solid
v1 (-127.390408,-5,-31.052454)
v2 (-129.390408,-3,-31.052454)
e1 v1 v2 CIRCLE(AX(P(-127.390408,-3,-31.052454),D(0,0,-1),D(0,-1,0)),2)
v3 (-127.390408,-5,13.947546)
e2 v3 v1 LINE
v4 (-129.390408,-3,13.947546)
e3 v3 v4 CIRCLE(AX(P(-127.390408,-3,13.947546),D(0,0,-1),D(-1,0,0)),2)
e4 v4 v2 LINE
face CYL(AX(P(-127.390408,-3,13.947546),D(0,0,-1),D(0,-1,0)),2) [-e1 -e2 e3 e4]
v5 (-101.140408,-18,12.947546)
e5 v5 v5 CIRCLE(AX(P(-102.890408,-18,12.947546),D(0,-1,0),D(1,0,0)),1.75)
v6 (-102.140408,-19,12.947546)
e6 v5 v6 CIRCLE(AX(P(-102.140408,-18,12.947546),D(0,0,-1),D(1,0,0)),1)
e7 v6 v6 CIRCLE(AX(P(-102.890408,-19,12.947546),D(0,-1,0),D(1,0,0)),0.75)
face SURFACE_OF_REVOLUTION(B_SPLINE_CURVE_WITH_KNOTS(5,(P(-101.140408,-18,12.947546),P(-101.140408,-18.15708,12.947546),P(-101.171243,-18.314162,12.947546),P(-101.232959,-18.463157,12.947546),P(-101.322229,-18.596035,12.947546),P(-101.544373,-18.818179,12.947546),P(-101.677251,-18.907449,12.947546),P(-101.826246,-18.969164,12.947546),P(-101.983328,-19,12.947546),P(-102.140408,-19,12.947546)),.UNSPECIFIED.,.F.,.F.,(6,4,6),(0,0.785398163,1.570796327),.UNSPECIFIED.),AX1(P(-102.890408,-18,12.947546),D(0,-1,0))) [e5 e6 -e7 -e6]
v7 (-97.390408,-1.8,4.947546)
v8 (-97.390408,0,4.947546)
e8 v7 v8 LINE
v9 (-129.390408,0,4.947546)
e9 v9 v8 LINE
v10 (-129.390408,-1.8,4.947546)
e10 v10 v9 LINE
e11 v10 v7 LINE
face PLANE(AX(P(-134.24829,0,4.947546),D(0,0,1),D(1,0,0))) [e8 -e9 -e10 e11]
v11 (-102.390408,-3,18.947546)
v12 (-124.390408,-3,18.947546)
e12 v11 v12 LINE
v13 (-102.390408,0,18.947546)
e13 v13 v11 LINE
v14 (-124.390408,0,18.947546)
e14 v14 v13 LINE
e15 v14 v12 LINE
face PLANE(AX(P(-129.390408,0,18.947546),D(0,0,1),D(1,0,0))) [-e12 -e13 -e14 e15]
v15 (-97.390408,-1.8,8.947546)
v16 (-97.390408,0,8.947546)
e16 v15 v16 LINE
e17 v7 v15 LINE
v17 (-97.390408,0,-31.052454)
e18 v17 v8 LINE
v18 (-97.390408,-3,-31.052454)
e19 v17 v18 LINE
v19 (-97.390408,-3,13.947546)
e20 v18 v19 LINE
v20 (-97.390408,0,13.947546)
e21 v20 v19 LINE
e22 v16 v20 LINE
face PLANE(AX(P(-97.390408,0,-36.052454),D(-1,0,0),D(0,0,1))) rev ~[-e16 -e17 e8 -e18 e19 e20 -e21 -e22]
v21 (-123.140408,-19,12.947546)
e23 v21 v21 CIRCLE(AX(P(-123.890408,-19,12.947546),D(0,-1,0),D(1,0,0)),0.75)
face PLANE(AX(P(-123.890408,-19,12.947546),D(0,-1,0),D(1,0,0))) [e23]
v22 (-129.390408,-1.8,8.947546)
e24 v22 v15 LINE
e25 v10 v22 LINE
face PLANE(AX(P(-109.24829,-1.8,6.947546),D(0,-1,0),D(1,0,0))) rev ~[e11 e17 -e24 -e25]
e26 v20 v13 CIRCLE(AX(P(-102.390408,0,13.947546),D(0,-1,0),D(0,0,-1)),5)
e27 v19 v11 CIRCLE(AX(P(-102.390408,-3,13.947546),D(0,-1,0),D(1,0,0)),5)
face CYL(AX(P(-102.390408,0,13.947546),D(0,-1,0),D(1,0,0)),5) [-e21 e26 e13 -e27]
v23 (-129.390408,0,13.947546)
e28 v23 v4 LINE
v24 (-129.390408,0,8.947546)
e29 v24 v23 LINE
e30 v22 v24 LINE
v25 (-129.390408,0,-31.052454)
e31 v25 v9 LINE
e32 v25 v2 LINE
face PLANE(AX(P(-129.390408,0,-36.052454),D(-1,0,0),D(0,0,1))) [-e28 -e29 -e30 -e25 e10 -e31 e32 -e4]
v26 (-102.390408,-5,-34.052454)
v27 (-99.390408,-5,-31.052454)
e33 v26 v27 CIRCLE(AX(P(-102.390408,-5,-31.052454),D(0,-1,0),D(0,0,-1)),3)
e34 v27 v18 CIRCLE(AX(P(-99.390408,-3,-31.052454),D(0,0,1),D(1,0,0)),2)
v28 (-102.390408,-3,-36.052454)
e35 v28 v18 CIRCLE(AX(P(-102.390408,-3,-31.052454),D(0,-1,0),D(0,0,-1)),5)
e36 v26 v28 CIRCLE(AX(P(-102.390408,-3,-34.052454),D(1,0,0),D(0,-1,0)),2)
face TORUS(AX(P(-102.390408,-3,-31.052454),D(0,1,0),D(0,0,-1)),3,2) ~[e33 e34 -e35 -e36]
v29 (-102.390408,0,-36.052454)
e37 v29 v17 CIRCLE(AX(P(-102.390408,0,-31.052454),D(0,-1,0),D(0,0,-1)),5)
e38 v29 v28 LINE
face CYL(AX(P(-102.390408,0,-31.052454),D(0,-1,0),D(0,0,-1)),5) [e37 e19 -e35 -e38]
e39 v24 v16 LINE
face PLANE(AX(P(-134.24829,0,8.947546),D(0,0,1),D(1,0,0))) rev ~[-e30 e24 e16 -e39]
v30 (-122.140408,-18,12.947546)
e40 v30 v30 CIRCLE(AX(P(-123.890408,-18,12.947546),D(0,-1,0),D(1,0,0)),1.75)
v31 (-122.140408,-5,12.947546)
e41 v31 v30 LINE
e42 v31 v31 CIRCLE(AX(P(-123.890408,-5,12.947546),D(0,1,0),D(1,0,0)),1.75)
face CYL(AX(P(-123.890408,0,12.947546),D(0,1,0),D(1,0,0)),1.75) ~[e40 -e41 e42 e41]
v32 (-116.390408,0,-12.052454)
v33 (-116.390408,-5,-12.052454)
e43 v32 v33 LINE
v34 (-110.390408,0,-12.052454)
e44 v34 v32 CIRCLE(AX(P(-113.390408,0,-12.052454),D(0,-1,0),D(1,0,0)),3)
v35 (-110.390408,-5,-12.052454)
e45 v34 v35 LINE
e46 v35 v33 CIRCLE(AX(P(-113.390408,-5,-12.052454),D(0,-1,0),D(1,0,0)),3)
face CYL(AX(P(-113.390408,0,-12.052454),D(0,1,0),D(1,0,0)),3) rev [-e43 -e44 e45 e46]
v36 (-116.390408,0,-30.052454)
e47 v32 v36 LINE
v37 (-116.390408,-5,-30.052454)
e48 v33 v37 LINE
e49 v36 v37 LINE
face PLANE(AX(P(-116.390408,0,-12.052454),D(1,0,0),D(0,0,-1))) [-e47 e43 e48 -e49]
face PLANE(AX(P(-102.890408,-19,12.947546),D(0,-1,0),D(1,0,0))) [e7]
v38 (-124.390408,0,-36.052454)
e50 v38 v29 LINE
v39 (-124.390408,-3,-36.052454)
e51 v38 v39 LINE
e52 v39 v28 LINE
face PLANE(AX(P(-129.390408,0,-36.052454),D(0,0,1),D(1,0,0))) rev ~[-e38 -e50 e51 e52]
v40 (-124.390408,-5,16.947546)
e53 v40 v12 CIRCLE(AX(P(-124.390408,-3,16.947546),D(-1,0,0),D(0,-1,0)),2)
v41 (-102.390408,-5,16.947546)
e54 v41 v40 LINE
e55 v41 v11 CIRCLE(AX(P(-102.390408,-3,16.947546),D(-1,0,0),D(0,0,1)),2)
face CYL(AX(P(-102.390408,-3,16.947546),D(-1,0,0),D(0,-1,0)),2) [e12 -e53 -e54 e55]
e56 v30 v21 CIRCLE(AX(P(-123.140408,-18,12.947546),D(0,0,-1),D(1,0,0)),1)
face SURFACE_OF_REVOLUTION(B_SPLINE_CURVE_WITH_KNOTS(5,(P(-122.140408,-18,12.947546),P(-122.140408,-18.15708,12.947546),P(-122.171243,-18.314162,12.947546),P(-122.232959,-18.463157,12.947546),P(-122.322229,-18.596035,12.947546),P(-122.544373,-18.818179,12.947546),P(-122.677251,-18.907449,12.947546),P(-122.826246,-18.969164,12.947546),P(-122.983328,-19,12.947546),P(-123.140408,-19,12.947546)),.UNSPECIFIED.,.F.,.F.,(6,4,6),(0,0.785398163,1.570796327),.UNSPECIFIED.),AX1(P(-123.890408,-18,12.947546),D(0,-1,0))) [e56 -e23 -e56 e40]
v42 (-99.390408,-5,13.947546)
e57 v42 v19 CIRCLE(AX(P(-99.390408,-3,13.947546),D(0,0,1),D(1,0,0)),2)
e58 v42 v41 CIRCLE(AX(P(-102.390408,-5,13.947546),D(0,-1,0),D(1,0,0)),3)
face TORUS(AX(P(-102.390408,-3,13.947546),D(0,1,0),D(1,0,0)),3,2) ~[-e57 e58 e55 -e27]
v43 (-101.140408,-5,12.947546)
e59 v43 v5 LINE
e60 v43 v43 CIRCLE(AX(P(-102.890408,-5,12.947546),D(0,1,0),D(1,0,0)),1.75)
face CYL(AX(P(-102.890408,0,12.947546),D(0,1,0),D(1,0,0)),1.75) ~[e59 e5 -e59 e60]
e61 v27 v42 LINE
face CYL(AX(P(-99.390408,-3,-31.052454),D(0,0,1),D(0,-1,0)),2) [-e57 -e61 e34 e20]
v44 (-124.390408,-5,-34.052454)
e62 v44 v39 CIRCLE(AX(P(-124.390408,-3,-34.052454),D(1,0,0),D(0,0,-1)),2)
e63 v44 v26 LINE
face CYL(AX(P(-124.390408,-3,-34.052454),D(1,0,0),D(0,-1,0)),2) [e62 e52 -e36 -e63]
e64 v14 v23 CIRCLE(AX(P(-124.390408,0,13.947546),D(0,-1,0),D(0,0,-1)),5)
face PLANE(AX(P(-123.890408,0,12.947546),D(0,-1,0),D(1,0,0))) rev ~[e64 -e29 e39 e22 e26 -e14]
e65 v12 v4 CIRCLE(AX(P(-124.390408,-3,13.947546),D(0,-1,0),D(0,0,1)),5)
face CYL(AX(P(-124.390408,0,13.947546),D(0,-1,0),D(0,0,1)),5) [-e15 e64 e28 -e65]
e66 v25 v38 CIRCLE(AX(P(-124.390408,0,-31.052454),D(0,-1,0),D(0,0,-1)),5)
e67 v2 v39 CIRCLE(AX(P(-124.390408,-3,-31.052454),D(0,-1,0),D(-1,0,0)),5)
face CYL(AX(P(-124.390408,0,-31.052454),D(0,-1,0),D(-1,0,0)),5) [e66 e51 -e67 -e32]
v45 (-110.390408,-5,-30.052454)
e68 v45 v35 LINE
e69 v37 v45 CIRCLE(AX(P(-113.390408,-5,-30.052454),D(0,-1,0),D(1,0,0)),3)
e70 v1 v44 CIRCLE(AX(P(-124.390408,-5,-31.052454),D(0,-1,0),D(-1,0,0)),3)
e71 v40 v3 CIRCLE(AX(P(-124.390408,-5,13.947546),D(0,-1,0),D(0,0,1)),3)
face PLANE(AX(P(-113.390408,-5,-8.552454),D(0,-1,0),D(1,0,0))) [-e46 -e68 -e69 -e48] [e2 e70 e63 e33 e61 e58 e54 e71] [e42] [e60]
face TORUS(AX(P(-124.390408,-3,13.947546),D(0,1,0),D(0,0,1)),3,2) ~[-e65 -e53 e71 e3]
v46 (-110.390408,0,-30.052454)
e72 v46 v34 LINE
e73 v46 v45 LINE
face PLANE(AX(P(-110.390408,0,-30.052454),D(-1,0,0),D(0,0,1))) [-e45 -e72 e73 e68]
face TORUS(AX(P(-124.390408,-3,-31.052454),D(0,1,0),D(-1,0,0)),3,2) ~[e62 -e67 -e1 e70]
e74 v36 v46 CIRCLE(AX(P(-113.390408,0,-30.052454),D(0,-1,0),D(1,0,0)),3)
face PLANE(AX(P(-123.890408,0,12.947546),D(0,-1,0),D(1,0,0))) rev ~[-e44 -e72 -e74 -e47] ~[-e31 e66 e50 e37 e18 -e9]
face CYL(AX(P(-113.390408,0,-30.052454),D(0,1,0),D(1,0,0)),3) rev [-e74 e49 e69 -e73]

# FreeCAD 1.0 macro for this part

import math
import FreeCAD as App
import Part
import Sketcher
from FreeCAD import Vector


def edges_at(feature, points):
    """Names of the edges that pass closest to the given points."""
    edges = feature.Shape.Edges
    near = lambda p: min(range(len(edges)), key=lambda i: edges[i].distToShape(Part.Vertex(*p))[0])
    return sorted({f"Edge{near(p) + 1}" for p in points})

doc = App.newDocument("Part")
body = doc.addObject("PartDesign::Body", "Body")

# Sketch on XZ plane
sketch1 = body.newObject("Sketcher::SketchObject", "Sketch")
sketch1.AttachmentSupport = (doc.getObject("XZ_Plane"), [""])
sketch1.MapMode = "FlatFace"
sketch1.addGeometry([
    Part.LineSegment(Vector(-129, 19, 0), Vector(-129, -36, 0)),
    Part.LineSegment(Vector(-129, -36, 0), Vector(-97, -36, 0)),
    Part.LineSegment(Vector(-97, -36, 0), Vector(-97, 19, 0)),
    Part.LineSegment(Vector(-97, 19, 0), Vector(-129, 19, 0)),
], False)
sketch1.addConstraint([
    Sketcher.Constraint("Coincident", 0, 2, 1, 1),
    Sketcher.Constraint("Coincident", 1, 2, 2, 1),
    Sketcher.Constraint("Coincident", 2, 2, 3, 1),
    Sketcher.Constraint("Coincident", 3, 2, 0, 1),
    Sketcher.Constraint("Vertical", 0),
    Sketcher.Constraint("Horizontal", 1),
    Sketcher.Constraint("Vertical", 2),
    Sketcher.Constraint("Horizontal", 3),
    Sketcher.Constraint("DistanceX", 1, 1, 1, 2, 32.0),
    Sketcher.Constraint("DistanceY", 0, 2, 0, 1, 55.0),
    Sketcher.Constraint("DistanceX", 0, 2, -1, 1, 129.390408),
    Sketcher.Constraint("DistanceY", 0, 2, -1, 1, 36.052454),
])
pad1 = body.newObject("PartDesign::Pad", "Pad")
pad1.Profile = sketch1
pad1.Length = 5

# Sketch on XZ plane
sketch2 = body.newObject("Sketcher::SketchObject", "Sketch001")
sketch2.AttachmentSupport = (doc.getObject("XZ_Plane"), [""])
sketch2.MapMode = "FlatFace"
sketch2.addGeometry([
    Part.Circle(Vector(-123.9, 12.9, 0), Vector(0, 0, 1), 1.8),
    Part.Circle(Vector(-102.9, 12.9, 0), Vector(0, 0, 1), 1.8),
], False)
sketch2.addConstraint([
    Sketcher.Constraint("Equal", 0, 1),
    Sketcher.Constraint("Horizontal", 0, 3, 1, 3),
    Sketcher.Constraint("Diameter", 0, 3.5),
    Sketcher.Constraint("DistanceX", 0, 3, 1, 3, 21.0),
    Sketcher.Constraint("DistanceX", 0, 3, -1, 1, 123.890408),
    Sketcher.Constraint("DistanceY", -1, 1, 0, 3, 12.947546),
])
pad2 = body.newObject("PartDesign::Pad", "Pad001")
pad2.Profile = sketch2
pad2.Length = 19

# Sketch on XZ plane
sketch3 = body.newObject("Sketcher::SketchObject", "Sketch002")
sketch3.AttachmentSupport = (doc.getObject("XZ_Plane"), [""])
sketch3.MapMode = "FlatFace"
sketch3.addGeometry([
    Part.ArcOfCircle(Part.Circle(Vector(-113.4, -12.1, 0), Vector(0, 0, 1), 3), math.radians(0), math.radians(180)),
    Part.LineSegment(Vector(-116.4, -12.1, 0), Vector(-116.4, -30.1, 0)),
    Part.ArcOfCircle(Part.Circle(Vector(-113.4, -30.1, 0), Vector(0, 0, 1), 3), math.radians(180), math.radians(360)),
    Part.LineSegment(Vector(-110.4, -30.1, 0), Vector(-110.4, -12.1, 0)),
], False)
sketch3.addConstraint([
    Sketcher.Constraint("Tangent", 0, 2, 1, 1),
    Sketcher.Constraint("Tangent", 1, 2, 2, 1),
    Sketcher.Constraint("Tangent", 2, 2, 3, 1),
    Sketcher.Constraint("Tangent", 3, 2, 0, 1),
    Sketcher.Constraint("Vertical", 1),
    Sketcher.Constraint("Vertical", 3),
    Sketcher.Constraint("Radius", 0, 3.0),
    Sketcher.Constraint("DistanceY", 1, 2, 1, 1, 18.0),
    Sketcher.Constraint("DistanceX", 0, 3, -1, 1, 113.390408),
    Sketcher.Constraint("DistanceY", 0, 3, -1, 1, 12.052454),
])
pocket1 = body.newObject("PartDesign::Pocket", "Pocket")
pocket1.Profile = sketch3
pocket1.Length = 5
pocket1.Reversed = True

# Sketch on XZ plane
sketch4 = body.newObject("Sketcher::SketchObject", "Sketch003")
sketch4.AttachmentSupport = (doc.getObject("XZ_Plane"), [""])
sketch4.MapMode = "FlatFace"
sketch4.addGeometry([
    Part.LineSegment(Vector(-134.2, 8.9, 0), Vector(-134.2, 4.9, 0)),
    Part.LineSegment(Vector(-134.2, 4.9, 0), Vector(-84.2, 4.9, 0)),
    Part.LineSegment(Vector(-84.2, 4.9, 0), Vector(-84.2, 8.9, 0)),
    Part.LineSegment(Vector(-84.2, 8.9, 0), Vector(-134.2, 8.9, 0)),
], False)
sketch4.addConstraint([
    Sketcher.Constraint("Coincident", 0, 2, 1, 1),
    Sketcher.Constraint("Coincident", 1, 2, 2, 1),
    Sketcher.Constraint("Coincident", 2, 2, 3, 1),
    Sketcher.Constraint("Coincident", 3, 2, 0, 1),
    Sketcher.Constraint("Vertical", 0),
    Sketcher.Constraint("Horizontal", 1),
    Sketcher.Constraint("Vertical", 2),
    Sketcher.Constraint("Horizontal", 3),
    Sketcher.Constraint("DistanceX", 1, 1, 1, 2, 50.0),
    Sketcher.Constraint("DistanceY", 0, 2, 0, 1, 4.0),
    Sketcher.Constraint("DistanceX", 0, 2, -1, 1, 134.24829),
    Sketcher.Constraint("DistanceY", -1, 1, 0, 2, 4.947546),
])
pocket2 = body.newObject("PartDesign::Pocket", "Pocket001")
pocket2.Profile = sketch4
pocket2.Length = 1.8
pocket2.Reversed = True
doc.recompute()

fillet = body.newObject("PartDesign::Fillet", "Fillet")
fillet.Base = (pocket2, edges_at(pocket2, [(-97.39, -2.5, 18.948)]))
fillet.Radius = 5
doc.recompute()

fillet2 = body.newObject("PartDesign::Fillet", "Fillet001")
fillet2.Base = (fillet, edges_at(fillet, [(-129.39, -2.5, 18.948)]))
fillet2.Radius = 5
doc.recompute()

fillet3 = body.newObject("PartDesign::Fillet", "Fillet002")
fillet3.Base = (fillet2, edges_at(fillet2, [(-129.39, -2.5, -36.052)]))
fillet3.Radius = 5
doc.recompute()

fillet4 = body.newObject("PartDesign::Fillet", "Fillet003")
fillet4.Base = (fillet3, edges_at(fillet3, [(-97.39, -2.5, -36.052)]))
fillet4.Radius = 5
doc.recompute()

fillet5 = body.newObject("PartDesign::Fillet", "Fillet004")
fillet5.Base = (fillet4, edges_at(fillet4, [
    (-98.855, -5, 17.483),
    (-113.39, -5, 18.948),
    (-127.926, -5, 17.483),
    (-129.39, -5, -8.552),
    (-127.926, -5, -34.588),
    (-113.39, -5, -36.052),
    (-97.39, -5, -8.552),
]))
fillet5.Radius = 2
doc.recompute()

fillet6 = body.newObject("PartDesign::Fillet", "Fillet005")
fillet6.Base = (fillet5, edges_at(fillet5, [(-125.64, -19, 12.948), (-104.64, -19, 12.948)]))
fillet6.Radius = 1

doc.recompute()
